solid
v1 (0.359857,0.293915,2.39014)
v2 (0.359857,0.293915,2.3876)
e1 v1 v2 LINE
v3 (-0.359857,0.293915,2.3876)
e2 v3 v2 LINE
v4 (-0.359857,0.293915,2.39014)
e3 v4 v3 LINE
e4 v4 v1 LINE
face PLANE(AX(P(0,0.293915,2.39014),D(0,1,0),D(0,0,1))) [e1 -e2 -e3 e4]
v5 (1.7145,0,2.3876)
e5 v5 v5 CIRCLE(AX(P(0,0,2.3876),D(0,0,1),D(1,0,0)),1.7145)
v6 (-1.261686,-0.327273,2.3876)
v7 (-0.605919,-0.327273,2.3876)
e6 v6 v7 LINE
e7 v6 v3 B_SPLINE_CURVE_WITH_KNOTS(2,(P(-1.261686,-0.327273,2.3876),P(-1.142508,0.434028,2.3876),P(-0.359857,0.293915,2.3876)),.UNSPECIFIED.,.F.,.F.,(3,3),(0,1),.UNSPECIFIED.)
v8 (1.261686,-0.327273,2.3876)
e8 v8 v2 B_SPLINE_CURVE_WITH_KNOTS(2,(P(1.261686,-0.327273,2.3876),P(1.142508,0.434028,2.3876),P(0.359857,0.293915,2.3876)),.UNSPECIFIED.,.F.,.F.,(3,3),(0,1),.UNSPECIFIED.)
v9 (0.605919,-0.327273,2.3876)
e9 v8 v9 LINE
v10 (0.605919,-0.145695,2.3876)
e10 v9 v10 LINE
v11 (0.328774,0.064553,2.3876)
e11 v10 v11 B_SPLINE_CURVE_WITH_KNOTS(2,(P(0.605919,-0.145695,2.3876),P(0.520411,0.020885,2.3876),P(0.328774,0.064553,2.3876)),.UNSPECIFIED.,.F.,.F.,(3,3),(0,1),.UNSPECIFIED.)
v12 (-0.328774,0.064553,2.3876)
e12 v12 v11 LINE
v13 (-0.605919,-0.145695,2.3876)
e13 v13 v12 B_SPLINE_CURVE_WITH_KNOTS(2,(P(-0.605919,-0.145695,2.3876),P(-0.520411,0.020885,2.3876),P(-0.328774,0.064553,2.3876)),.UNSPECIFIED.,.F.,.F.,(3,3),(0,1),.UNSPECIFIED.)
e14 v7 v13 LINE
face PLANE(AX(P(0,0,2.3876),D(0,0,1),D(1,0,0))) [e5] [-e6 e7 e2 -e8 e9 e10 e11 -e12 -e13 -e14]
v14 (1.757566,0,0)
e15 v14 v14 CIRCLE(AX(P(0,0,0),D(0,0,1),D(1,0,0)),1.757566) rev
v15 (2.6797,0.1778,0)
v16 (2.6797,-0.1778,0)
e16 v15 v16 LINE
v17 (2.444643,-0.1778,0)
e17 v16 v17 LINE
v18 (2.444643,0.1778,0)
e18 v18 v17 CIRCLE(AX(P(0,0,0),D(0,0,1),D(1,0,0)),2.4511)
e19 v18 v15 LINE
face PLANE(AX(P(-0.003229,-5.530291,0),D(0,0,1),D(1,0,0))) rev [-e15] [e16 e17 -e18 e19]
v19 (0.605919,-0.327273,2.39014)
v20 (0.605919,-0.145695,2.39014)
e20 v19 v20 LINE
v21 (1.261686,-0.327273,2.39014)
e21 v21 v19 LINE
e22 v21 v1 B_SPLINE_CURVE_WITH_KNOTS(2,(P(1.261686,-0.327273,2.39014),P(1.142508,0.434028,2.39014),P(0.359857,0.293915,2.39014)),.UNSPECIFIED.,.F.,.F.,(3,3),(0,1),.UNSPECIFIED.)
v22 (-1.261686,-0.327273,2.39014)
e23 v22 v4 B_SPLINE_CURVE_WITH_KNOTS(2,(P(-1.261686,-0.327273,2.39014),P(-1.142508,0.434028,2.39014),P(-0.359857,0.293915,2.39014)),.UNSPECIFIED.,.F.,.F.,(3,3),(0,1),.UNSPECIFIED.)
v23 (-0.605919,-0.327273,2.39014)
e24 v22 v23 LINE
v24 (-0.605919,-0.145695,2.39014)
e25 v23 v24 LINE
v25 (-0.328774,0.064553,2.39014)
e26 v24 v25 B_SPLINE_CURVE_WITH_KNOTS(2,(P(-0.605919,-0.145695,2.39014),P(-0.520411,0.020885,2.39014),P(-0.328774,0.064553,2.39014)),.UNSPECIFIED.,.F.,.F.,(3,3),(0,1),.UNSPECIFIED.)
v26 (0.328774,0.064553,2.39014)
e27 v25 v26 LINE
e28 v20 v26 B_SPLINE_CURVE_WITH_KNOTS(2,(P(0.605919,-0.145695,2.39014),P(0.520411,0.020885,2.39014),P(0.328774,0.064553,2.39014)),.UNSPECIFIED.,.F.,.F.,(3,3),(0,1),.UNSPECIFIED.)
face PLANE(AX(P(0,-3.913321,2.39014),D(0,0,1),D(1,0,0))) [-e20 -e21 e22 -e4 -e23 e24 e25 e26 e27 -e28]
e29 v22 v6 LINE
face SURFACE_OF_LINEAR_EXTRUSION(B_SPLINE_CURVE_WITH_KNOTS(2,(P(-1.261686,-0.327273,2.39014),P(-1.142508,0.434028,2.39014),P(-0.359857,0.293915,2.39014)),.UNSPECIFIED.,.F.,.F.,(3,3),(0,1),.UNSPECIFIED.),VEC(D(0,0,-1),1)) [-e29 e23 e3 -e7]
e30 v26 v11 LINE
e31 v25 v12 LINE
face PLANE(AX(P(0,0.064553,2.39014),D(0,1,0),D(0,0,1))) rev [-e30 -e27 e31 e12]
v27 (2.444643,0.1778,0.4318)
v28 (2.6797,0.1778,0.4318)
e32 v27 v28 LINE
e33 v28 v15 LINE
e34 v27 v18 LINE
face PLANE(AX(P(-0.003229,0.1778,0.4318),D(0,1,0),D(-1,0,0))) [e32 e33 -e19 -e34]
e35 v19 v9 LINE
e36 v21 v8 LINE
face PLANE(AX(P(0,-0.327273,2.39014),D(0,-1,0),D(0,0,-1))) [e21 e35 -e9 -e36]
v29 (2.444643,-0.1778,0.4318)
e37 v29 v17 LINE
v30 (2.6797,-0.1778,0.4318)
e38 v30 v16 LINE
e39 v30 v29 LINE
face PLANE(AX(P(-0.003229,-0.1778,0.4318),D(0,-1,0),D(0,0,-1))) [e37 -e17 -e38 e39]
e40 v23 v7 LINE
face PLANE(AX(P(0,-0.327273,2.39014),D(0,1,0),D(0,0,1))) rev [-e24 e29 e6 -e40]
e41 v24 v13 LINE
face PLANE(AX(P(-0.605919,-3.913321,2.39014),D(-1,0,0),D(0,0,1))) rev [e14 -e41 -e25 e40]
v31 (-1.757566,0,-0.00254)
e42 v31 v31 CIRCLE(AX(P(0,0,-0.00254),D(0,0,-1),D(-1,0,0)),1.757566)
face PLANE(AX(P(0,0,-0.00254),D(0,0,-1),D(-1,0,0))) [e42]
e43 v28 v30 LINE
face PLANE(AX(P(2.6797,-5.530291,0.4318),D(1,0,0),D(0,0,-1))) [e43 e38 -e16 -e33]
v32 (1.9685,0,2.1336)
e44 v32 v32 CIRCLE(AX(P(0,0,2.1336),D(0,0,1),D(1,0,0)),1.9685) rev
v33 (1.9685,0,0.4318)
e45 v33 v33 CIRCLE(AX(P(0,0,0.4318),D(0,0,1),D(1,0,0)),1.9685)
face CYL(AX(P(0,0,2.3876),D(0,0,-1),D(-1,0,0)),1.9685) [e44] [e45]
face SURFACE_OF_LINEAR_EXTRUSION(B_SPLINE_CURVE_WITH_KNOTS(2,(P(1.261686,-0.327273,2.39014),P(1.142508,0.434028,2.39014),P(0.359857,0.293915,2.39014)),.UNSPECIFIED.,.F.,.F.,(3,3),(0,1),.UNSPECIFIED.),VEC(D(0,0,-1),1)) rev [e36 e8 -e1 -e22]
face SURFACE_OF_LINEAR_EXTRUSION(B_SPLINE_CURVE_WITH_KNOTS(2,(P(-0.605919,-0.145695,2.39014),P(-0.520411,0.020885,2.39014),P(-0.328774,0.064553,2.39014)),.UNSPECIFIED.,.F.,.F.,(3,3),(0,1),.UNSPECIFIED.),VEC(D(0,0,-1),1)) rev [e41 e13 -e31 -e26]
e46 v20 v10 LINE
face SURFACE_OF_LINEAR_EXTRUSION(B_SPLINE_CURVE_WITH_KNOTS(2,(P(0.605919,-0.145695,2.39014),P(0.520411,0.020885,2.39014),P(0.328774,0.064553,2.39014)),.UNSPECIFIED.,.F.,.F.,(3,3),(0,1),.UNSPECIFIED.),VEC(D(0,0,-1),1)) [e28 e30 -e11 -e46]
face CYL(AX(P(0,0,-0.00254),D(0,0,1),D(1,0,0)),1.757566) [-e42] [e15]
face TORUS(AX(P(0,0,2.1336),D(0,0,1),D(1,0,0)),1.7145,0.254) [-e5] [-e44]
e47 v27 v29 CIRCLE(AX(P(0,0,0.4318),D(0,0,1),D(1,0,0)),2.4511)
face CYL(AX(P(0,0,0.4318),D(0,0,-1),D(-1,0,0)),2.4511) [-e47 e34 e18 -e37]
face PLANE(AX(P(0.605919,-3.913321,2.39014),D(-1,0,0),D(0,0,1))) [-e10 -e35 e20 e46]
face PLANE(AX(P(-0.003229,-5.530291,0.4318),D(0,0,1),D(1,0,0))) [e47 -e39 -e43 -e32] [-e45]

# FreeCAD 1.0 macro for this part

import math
import FreeCAD as App
import Part
import Sketcher
Q = App.Units.Quantity


def edges_at(feature, points):
    """Names of the edges that pass closest to the given points."""
    edges = feature.Shape.Edges
    near = lambda p: min(range(len(edges)), key=lambda i: edges[i].distToShape(Part.Vertex(*p))[0])
    return sorted({f"Edge{near(p) + 1}" for p in points})

doc = App.newDocument("Part")
params = doc.addObject("Spreadsheet::Sheet", "Params")
for row, (alias, value) in enumerate([
    ("sketch1_height", "0.014 in"),
    ("pad1_length", "0.017 in"),
    ("sketch2_diameter", "0.155 in"),
    ("pad2_length", "0.077 in"),
    ("pad3_length", "0.0001 in"),
    ("fillet_radius", "0.01 in"),
    ("pad4_length", "0.0001 in"),
], start=1):
    params.set(f"A{row}", alias)
    params.set(f"B{row}", "=" + value)
    params.setAlias(f"B{row}", alias)

body = doc.addObject("PartDesign::Body", "Body")

sketch1 = doc.addObject("Sketcher::SketchObject", "Sketch")
body.addObject(sketch1)
sketch1.AttachmentSupport = (doc.XY_Plane, [""])
sketch1.MapMode = "FlatFace"
sketch1.addGeometry([
    Part.LineSegment(App.Vector(2.68, 0.18, 0), App.Vector(2.44, 0.18, 0)),
    Part.ArcOfCircle(Part.Circle(App.Vector(0, 0, 0), App.Vector(0, 0, 1), 2.45), math.radians(4), math.radians(356)),
    Part.LineSegment(App.Vector(2.44, -0.18, 0), App.Vector(2.68, -0.18, 0)),
    Part.LineSegment(App.Vector(2.68, -0.18, 0), App.Vector(2.68, 0.18, 0)),
], False)
sketch1.addConstraint([
    Sketcher.Constraint("Coincident", 0, 2, 1, 1),
    Sketcher.Constraint("Coincident", 1, 2, 2, 1),
    Sketcher.Constraint("Coincident", 2, 2, 3, 1),
    Sketcher.Constraint("Coincident", 3, 2, 0, 1),
    Sketcher.Constraint("Horizontal", 0),
    Sketcher.Constraint("Horizontal", 2),
    Sketcher.Constraint("Vertical", 3),
    Sketcher.Constraint("Coincident", 1, 3, -1, 1),
    Sketcher.Constraint("Vertical", 0, 2, 1, 2),
    Sketcher.Constraint("Radius", 1, Q("0.0965 in")),
    Sketcher.Constraint("DistanceY", 3, 1, 3, 2, Q("0.014 in")),
    Sketcher.Constraint("DistanceX", -1, 1, 2, 2, Q("0.1055 in")),
])
sketch1.setExpression("Constraints[10]", "Params.sketch1_height")
pad1 = doc.addObject("PartDesign::Pad", "Pad")
body.addObject(pad1)
pad1.Profile = sketch1
pad1.setExpression("Length", "Params.pad1_length")

sketch2 = doc.addObject("Sketcher::SketchObject", "Sketch001")
body.addObject(sketch2)
sketch2.AttachmentSupport = (doc.XY_Plane, [""])
sketch2.MapMode = "FlatFace"
sketch2.AttachmentOffset = App.Placement(App.Vector(0, 0, 0.017 * 25.4), App.Rotation())
sketch2.addGeometry(Part.Circle(App.Vector(0, 0, 0), App.Vector(0, 0, 1), 2), False)
sketch2.addConstraint([
    Sketcher.Constraint("Coincident", 0, 3, -1, 1),
    Sketcher.Constraint("Diameter", 0, Q("0.155 in")),
])
sketch2.setExpression("Constraints[1]", "Params.sketch2_diameter")
pad2 = doc.addObject("PartDesign::Pad", "Pad001")
body.addObject(pad2)
pad2.Profile = sketch2
pad2.setExpression("Length", "Params.pad2_length")

sketch3 = doc.addObject("Sketcher::SketchObject", "Sketch002")
body.addObject(sketch3)
sketch3.AttachmentSupport = (doc.XY_Plane, [""])
sketch3.MapMode = "FlatFace"
sketch3.addGeometry(Part.Circle(App.Vector(0, 0, 0), App.Vector(0, 0, 1), 1.8), False)
sketch3.addConstraint([
    Sketcher.Constraint("Coincident", 0, 3, -1, 1),
    Sketcher.Constraint("Diameter", 0, 3.515133),
])
pad3 = doc.addObject("PartDesign::Pad", "Pad002")
body.addObject(pad3)
pad3.Profile = sketch3
pad3.setExpression("Length", "Params.pad3_length")
pad3.Reversed = True
doc.recompute()

fillet = doc.addObject("PartDesign::Fillet", "Fillet")
body.addObject(fillet)
fillet.Base = (pad3, edges_at(pad3, [(-1.968, 0, 2.388)]))
fillet.setExpression("Radius", "Params.fillet_radius")

sketch4 = doc.addObject("Sketcher::SketchObject", "Sketch003")
body.addObject(sketch4)
sketch4.AttachmentSupport = (doc.XY_Plane, [""])
sketch4.MapMode = "FlatFace"
sketch4.AttachmentOffset = App.Placement(App.Vector(0, 0, 0.094 * 25.4), App.Rotation())
sketch4.addGeometry([
    Part.LineSegment(App.Vector(-1.261686, -0.327273, 0), App.Vector(-0.605919, -0.327273, 0)),
    Part.LineSegment(App.Vector(-0.605919, -0.327273, 0), App.Vector(-0.605919, -0.145695, 0)),
    Part.BSplineCurve([App.Vector(-0.605919, -0.145695, 0), App.Vector(-0.520411, 0.020885, 0), App.Vector(-0.328774, 0.064553, 0)], [3, 3], [0, 1], False, 2, [1, 1, 1], False),
    Part.LineSegment(App.Vector(-0.328774, 0.064553, 0), App.Vector(0.328774, 0.064553, 0)),
    Part.BSplineCurve([App.Vector(0.605919, -0.145695, 0), App.Vector(0.520411, 0.020885, 0), App.Vector(0.328774, 0.064553, 0)], [3, 3], [0, 1], False, 2, [1, 1, 1], False),
    Part.LineSegment(App.Vector(0.605919, -0.145695, 0), App.Vector(0.605919, -0.327273, 0)),
    Part.LineSegment(App.Vector(0.605919, -0.327273, 0), App.Vector(1.261686, -0.327273, 0)),
    Part.BSplineCurve([App.Vector(1.261686, -0.327273, 0), App.Vector(1.142508, 0.434028, 0), App.Vector(0.359857, 0.293915, 0)], [3, 3], [0, 1], False, 2, [1, 1, 1], False),
    Part.LineSegment(App.Vector(0.359857, 0.293915, 0), App.Vector(-0.359857, 0.293915, 0)),
    Part.BSplineCurve([App.Vector(-1.261686, -0.327273, 0), App.Vector(-1.142508, 0.434028, 0), App.Vector(-0.359857, 0.293915, 0)], [3, 3], [0, 1], False, 2, [1, 1, 1], False),
], False)
sketch4.addConstraint([
    Sketcher.Constraint("Block", 2),
    Sketcher.Constraint("Block", 4),
    Sketcher.Constraint("Block", 7),
    Sketcher.Constraint("Block", 9),
    Sketcher.Constraint("Coincident", 0, 2, 1, 1),
    Sketcher.Constraint("Coincident", 1, 2, 2, 1),
    Sketcher.Constraint("Coincident", 2, 2, 3, 1),
    Sketcher.Constraint("Coincident", 3, 2, 4, 2),
    Sketcher.Constraint("Coincident", 4, 1, 5, 1),
    Sketcher.Constraint("Coincident", 5, 2, 6, 1),
    Sketcher.Constraint("Coincident", 6, 2, 7, 1),
    Sketcher.Constraint("Coincident", 7, 2, 8, 1),
    Sketcher.Constraint("Coincident", 8, 2, 9, 2),
    Sketcher.Constraint("Coincident", 9, 1, 0, 1),
    Sketcher.Constraint("Horizontal", 0),
    Sketcher.Constraint("Vertical", 1),
    Sketcher.Constraint("Vertical", 5),
    Sketcher.Constraint("Horizontal", 6),
])
pad4 = doc.addObject("PartDesign::Pad", "Pad003")
body.addObject(pad4)
pad4.Profile = sketch4
pad4.setExpression("Length", "Params.pad4_length")

doc.recompute()
